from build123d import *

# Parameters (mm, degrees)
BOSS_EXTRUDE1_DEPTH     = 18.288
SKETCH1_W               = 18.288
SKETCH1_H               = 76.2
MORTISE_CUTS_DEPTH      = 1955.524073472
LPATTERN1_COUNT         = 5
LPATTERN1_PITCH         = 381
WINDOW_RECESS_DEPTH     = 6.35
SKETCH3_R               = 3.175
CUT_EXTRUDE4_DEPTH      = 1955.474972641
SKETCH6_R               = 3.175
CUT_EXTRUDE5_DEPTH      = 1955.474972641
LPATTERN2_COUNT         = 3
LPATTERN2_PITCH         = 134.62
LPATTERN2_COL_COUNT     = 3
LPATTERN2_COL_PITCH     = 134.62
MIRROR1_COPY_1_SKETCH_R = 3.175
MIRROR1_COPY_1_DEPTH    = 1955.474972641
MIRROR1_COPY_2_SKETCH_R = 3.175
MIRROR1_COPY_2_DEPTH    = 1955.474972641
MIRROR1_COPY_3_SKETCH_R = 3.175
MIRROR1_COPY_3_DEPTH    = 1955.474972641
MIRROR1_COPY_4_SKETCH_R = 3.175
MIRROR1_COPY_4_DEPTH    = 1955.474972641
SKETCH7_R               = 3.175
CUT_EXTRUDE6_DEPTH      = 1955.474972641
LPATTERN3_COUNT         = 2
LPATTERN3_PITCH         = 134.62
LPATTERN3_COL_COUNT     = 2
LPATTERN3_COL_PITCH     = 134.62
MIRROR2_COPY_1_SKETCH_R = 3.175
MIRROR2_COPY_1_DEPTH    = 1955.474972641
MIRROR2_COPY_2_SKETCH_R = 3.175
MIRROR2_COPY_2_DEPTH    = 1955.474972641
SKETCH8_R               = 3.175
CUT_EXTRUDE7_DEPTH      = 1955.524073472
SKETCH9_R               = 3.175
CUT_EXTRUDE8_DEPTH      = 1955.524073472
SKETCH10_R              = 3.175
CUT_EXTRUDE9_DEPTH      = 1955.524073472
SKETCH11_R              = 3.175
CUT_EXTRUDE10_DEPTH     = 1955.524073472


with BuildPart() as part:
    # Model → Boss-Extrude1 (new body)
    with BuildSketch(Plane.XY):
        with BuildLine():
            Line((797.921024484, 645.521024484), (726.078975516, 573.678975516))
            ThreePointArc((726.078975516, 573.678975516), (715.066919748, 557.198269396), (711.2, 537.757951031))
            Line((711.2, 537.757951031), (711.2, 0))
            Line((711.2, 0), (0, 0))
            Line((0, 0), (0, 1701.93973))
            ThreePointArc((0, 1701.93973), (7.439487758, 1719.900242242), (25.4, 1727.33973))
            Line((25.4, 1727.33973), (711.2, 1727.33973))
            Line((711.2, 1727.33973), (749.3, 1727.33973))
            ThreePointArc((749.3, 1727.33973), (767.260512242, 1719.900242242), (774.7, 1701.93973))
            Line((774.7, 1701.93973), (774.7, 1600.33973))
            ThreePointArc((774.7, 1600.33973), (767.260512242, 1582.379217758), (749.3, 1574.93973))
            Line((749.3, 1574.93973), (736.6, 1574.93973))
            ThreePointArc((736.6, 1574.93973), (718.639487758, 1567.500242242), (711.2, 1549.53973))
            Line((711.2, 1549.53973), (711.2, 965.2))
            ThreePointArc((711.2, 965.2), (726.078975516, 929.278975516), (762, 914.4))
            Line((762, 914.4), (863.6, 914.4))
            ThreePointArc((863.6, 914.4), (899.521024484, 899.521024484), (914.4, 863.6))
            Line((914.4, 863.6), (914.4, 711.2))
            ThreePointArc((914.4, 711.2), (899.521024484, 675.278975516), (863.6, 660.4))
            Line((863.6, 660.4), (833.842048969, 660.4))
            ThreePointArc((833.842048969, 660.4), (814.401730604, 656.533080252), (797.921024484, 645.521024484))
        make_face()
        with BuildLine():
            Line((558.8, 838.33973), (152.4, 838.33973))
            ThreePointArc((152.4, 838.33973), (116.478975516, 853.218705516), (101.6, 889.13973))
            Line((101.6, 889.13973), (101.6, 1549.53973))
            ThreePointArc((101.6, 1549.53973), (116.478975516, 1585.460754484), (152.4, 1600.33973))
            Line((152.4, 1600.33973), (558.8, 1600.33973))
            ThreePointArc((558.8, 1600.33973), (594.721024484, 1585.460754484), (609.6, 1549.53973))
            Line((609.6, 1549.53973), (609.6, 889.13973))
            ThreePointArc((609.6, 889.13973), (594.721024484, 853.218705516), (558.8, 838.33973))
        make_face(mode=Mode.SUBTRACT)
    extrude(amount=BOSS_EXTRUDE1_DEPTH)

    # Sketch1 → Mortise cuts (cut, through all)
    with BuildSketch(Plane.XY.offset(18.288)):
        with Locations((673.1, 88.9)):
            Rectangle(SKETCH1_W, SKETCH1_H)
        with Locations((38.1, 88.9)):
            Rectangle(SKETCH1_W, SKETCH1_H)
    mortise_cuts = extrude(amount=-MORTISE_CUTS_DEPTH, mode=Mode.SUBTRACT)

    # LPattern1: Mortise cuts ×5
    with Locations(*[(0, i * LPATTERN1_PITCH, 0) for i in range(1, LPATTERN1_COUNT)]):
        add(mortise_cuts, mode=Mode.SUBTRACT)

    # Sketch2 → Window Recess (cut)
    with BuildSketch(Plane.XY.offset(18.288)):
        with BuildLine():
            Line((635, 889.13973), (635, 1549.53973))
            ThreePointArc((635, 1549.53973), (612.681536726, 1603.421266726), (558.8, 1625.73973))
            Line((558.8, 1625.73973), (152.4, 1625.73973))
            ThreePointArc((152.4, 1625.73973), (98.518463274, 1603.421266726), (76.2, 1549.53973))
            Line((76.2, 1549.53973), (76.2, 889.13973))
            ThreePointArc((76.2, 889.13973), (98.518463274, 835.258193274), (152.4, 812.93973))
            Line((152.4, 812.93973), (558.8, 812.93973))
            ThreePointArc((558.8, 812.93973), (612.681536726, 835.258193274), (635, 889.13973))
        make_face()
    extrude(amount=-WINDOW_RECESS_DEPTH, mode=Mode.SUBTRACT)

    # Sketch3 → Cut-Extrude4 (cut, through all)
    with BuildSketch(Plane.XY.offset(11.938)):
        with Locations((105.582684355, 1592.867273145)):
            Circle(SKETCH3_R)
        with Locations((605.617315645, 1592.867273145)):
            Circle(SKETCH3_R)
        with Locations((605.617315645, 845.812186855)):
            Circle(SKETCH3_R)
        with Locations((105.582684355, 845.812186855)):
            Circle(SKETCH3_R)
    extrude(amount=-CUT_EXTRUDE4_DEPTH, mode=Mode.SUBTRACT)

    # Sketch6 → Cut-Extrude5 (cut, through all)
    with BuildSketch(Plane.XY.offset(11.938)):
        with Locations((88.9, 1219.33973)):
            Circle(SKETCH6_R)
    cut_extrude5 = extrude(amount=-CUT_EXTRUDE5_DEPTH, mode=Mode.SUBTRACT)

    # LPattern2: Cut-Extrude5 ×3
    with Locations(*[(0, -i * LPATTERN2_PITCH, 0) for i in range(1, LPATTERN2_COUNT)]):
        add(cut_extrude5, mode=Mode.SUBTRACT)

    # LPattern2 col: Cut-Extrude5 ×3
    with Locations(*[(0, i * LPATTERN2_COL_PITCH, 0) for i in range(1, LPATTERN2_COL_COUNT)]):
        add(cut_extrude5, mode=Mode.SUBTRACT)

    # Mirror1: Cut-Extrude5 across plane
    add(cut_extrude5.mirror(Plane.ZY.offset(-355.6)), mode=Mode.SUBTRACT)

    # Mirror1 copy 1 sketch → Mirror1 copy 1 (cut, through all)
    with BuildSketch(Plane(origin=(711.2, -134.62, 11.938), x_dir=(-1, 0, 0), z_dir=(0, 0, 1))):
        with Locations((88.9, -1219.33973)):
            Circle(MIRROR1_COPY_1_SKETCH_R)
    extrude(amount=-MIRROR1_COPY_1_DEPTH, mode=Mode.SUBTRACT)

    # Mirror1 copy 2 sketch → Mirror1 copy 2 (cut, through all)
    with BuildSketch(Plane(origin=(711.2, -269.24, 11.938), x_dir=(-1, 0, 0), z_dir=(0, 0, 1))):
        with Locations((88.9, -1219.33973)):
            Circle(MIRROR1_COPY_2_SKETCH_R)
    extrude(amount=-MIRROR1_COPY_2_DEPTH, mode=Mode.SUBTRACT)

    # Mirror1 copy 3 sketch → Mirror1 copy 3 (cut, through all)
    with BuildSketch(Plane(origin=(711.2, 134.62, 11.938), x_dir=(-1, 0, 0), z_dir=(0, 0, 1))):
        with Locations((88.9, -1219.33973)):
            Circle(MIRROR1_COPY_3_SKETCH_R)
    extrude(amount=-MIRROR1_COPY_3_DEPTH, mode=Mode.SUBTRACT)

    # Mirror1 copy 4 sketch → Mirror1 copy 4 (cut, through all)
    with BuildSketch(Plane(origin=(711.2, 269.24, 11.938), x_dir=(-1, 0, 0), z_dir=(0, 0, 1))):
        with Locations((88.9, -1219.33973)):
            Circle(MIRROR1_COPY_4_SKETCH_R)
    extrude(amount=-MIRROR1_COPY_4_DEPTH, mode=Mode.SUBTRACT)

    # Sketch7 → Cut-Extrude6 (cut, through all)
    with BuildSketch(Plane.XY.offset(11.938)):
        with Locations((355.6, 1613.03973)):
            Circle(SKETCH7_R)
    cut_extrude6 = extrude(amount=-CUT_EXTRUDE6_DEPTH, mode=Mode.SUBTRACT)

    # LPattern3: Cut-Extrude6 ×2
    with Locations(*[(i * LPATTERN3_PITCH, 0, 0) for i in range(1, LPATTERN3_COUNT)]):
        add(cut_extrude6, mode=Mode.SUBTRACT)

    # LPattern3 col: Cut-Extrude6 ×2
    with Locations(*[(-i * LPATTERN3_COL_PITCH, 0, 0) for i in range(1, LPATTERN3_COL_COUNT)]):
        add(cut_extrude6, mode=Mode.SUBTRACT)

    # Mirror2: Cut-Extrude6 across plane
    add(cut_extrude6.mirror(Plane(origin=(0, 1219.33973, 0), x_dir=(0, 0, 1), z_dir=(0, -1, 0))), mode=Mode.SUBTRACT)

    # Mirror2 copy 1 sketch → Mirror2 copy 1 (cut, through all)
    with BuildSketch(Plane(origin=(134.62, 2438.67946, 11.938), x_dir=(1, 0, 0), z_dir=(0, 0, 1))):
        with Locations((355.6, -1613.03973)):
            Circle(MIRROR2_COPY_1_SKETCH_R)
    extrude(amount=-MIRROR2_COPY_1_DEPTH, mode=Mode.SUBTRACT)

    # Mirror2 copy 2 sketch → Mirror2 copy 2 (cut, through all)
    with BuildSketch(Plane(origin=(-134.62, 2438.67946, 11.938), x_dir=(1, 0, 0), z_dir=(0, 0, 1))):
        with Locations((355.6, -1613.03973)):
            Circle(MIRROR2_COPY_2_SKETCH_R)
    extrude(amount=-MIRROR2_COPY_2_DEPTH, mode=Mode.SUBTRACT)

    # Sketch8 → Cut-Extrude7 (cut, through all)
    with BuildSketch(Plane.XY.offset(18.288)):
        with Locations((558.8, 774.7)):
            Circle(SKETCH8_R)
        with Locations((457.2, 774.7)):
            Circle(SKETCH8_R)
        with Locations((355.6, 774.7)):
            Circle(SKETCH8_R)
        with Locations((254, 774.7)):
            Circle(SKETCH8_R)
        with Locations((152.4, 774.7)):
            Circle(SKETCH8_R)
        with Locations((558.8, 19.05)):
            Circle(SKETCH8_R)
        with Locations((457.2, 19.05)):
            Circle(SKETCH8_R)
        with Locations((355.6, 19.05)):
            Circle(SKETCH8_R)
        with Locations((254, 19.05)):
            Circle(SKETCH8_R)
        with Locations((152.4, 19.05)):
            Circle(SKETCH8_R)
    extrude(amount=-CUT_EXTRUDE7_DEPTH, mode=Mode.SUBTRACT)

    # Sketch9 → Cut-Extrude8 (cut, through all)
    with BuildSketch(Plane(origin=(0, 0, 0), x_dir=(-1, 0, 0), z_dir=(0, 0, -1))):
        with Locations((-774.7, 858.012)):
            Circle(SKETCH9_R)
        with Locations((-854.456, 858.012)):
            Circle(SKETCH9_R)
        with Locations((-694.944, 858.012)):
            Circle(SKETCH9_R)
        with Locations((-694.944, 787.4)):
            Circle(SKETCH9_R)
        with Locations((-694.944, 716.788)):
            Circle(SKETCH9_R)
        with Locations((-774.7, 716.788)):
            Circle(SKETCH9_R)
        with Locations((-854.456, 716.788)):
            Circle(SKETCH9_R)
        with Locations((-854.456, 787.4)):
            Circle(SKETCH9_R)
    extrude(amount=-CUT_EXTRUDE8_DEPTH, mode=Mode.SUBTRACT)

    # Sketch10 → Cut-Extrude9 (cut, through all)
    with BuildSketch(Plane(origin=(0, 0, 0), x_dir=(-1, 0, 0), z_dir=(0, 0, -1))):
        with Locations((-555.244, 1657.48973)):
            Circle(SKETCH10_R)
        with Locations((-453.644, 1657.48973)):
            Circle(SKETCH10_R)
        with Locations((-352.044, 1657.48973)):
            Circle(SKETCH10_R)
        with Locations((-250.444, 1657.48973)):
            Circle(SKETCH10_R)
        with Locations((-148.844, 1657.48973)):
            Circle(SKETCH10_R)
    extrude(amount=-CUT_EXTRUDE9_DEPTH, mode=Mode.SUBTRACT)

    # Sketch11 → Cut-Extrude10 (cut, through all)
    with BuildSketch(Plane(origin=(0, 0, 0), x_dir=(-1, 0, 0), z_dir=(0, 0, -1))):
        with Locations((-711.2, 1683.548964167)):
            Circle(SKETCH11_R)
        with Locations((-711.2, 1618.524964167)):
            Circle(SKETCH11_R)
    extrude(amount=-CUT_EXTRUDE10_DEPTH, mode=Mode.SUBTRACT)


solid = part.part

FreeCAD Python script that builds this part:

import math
import FreeCAD as App
import Part
import Sketcher
from FreeCAD import Vector
Q = App.Units.Quantity


def add_polygon(sketch, points):
    """Adds a closed chain of lines whose ends are joined by coincident constraints."""
    first, n = sketch.GeometryCount, len(points)
    for a, b in zip(points, points[1:] + points[:1]):
        sketch.addGeometry(Part.LineSegment(App.Vector(*a, 0), App.Vector(*b, 0)), False)
    for i in range(n):
        sketch.addConstraint(Sketcher.Constraint("Coincident", first + i, 2, first + (i + 1) % n, 1))

doc = App.newDocument("Part")
body = doc.addObject("PartDesign::Body", "Body")

sketch1 = doc.addObject("Sketcher::SketchObject", "Sketch")
body.addObject(sketch1)
sketch1.AttachmentSupport = (doc.XY_Plane, [""])
sketch1.MapMode = "FlatFace"
sketch1.addGeometry([
    Part.LineSegment(Vector(726, 574, 0), Vector(798, 646, 0)),
    Part.ArcOfCircle(Part.Circle(Vector(834, 610, 0), Vector(0, 0, 1), 51), math.radians(90), math.radians(135)),
    Part.LineSegment(Vector(834, 660, 0), Vector(864, 660, 0)),
    Part.ArcOfCircle(Part.Circle(Vector(864, 711, 0), Vector(0, 0, 1), 51), math.radians(-90), math.radians(0)),
    Part.LineSegment(Vector(914, 711, 0), Vector(914, 864, 0)),
    Part.ArcOfCircle(Part.Circle(Vector(864, 864, 0), Vector(0, 0, 1), 51), math.radians(0), math.radians(90)),
    Part.LineSegment(Vector(864, 914, 0), Vector(762, 914, 0)),
    Part.ArcOfCircle(Part.Circle(Vector(762, 965, 0), Vector(0, 0, 1), 51), math.radians(-180), math.radians(-90)),
    Part.LineSegment(Vector(711, 965, 0), Vector(711, 1550, 0)),
    Part.ArcOfCircle(Part.Circle(Vector(737, 1550, 0), Vector(0, 0, 1), 25), math.radians(90), math.radians(180)),
    Part.LineSegment(Vector(737, 1575, 0), Vector(749, 1575, 0)),
    Part.ArcOfCircle(Part.Circle(Vector(749, 1600, 0), Vector(0, 0, 1), 25), math.radians(-90), math.radians(0)),
    Part.LineSegment(Vector(775, 1600, 0), Vector(775, 1702, 0)),
    Part.ArcOfCircle(Part.Circle(Vector(749, 1702, 0), Vector(0, 0, 1), 25), math.radians(0), math.radians(90)),
    Part.LineSegment(Vector(749, 1727, 0), Vector(25, 1727, 0)),
    Part.ArcOfCircle(Part.Circle(Vector(25, 1702, 0), Vector(0, 0, 1), 25), math.radians(90), math.radians(180)),
    Part.LineSegment(Vector(0, 1702, 0), Vector(0, 0, 0)),
    Part.LineSegment(Vector(0, 0, 0), Vector(711, 0, 0)),
    Part.LineSegment(Vector(711, 0, 0), Vector(711, 538, 0)),
    Part.ArcOfCircle(Part.Circle(Vector(762, 538, 0), Vector(0, 0, 1), 51), math.radians(135), math.radians(180)),
    Part.LineSegment(Vector(559, 838, 0), Vector(152, 838, 0)),
    Part.ArcOfCircle(Part.Circle(Vector(152, 889, 0), Vector(0, 0, 1), 51), math.radians(-180), math.radians(-90)),
    Part.LineSegment(Vector(102, 889, 0), Vector(102, 1550, 0)),
    Part.ArcOfCircle(Part.Circle(Vector(152, 1550, 0), Vector(0, 0, 1), 51), math.radians(90), math.radians(180)),
    Part.LineSegment(Vector(152, 1600, 0), Vector(559, 1600, 0)),
    Part.ArcOfCircle(Part.Circle(Vector(559, 1550, 0), Vector(0, 0, 1), 51), math.radians(0), math.radians(90)),
    Part.LineSegment(Vector(610, 1550, 0), Vector(610, 889, 0)),
    Part.ArcOfCircle(Part.Circle(Vector(559, 889, 0), Vector(0, 0, 1), 51), math.radians(-90), math.radians(0)),
], False)
sketch1.addConstraint([
    Sketcher.Constraint("Tangent", 0, 2, 1, 2),
    Sketcher.Constraint("Tangent", 1, 1, 2, 1),
    Sketcher.Constraint("Tangent", 2, 2, 3, 1),
    Sketcher.Constraint("Tangent", 3, 2, 4, 1),
    Sketcher.Constraint("Tangent", 4, 2, 5, 1),
    Sketcher.Constraint("Tangent", 5, 2, 6, 1),
    Sketcher.Constraint("Tangent", 6, 2, 7, 2),
    Sketcher.Constraint("Tangent", 7, 1, 8, 1),
    Sketcher.Constraint("Tangent", 8, 2, 9, 2),
    Sketcher.Constraint("Tangent", 9, 1, 10, 1),
    Sketcher.Constraint("Tangent", 10, 2, 11, 1),
    Sketcher.Constraint("Tangent", 11, 2, 12, 1),
    Sketcher.Constraint("Tangent", 12, 2, 13, 1),
    Sketcher.Constraint("Tangent", 13, 2, 14, 1),
    Sketcher.Constraint("Tangent", 14, 2, 15, 1),
    Sketcher.Constraint("Tangent", 15, 2, 16, 1),
    Sketcher.Constraint("Coincident", 16, 2, 17, 1),
    Sketcher.Constraint("Coincident", 17, 2, 18, 1),
    Sketcher.Constraint("Tangent", 18, 2, 19, 2),
    Sketcher.Constraint("Tangent", 19, 1, 0, 1),
    Sketcher.Constraint("Tangent", 20, 2, 21, 2),
    Sketcher.Constraint("Tangent", 21, 1, 22, 1),
    Sketcher.Constraint("Tangent", 22, 2, 23, 2),
    Sketcher.Constraint("Tangent", 23, 1, 24, 1),
    Sketcher.Constraint("Tangent", 24, 2, 25, 2),
    Sketcher.Constraint("Tangent", 25, 1, 26, 1),
    Sketcher.Constraint("Tangent", 26, 2, 27, 2),
    Sketcher.Constraint("Tangent", 27, 1, 20, 1),
    Sketcher.Constraint("Horizontal", 2),
    Sketcher.Constraint("Vertical", 4),
    Sketcher.Constraint("Horizontal", 6),
    Sketcher.Constraint("Vertical", 8),
    Sketcher.Constraint("Horizontal", 10),
    Sketcher.Constraint("Vertical", 12),
    Sketcher.Constraint("Horizontal", 14),
    Sketcher.Constraint("Vertical", 16),
    Sketcher.Constraint("Horizontal", 17),
    Sketcher.Constraint("Vertical", 18),
    Sketcher.Constraint("Horizontal", 20),
    Sketcher.Constraint("Vertical", 22),
    Sketcher.Constraint("Horizontal", 24),
    Sketcher.Constraint("Vertical", 26),
    Sketcher.Constraint("Coincident", 16, 2, -1, 1),
    Sketcher.Constraint("Equal", 1, 3),
    Sketcher.Constraint("Equal", 3, 5),
    Sketcher.Constraint("Equal", 5, 7),
    Sketcher.Constraint("Equal", 9, 11),
    Sketcher.Constraint("Equal", 11, 13),
    Sketcher.Constraint("Equal", 13, 15),
    Sketcher.Constraint("Equal", 7, 19),
    Sketcher.Constraint("Equal", 19, 21),
    Sketcher.Constraint("Equal", 21, 23),
    Sketcher.Constraint("Equal", 23, 25),
    Sketcher.Constraint("Equal", 25, 27),
    Sketcher.Constraint("Horizontal", 9, 3, 23, 3),
    Sketcher.Constraint("Horizontal", 11, 2, 23, 1),
    Sketcher.Constraint("Vertical", 7, 3, 19, 3),
    Sketcher.Constraint("Equal", 6, 12),
    Sketcher.Constraint("Radius", 1, Q("2 in")),
    Sketcher.Constraint("DistanceX", 6, 2, 6, 1, Q("4 in")),
    Sketcher.Constraint("DistanceX", 17, 1, 17, 2, Q("28 in")),
    Sketcher.Constraint("DistanceX", 20, 2, 20, 1, Q("16 in")),
    Sketcher.Constraint("DistanceY", 4, 1, 4, 2, Q("6 in")),
    Sketcher.Constraint("DistanceY", 22, 1, 22, 2, Q("26 in")),
    Sketcher.Constraint("Distance", 0, Q("4 in")),
    Sketcher.Constraint("DistanceX", 10, 1, 10, 2, Q("0.5 in")),
    Sketcher.Constraint("DistanceY", -1, 1, 1, 3, Q("24 in")),
    Sketcher.Constraint("DistanceX", -1, 1, 21, 3, Q("6 in")),
    Sketcher.Constraint("Angle", 0, Q("45 deg")),
    Sketcher.Constraint("DistanceY", 8, 1, 8, 2, Q("584.33973 mm")),
])
pad1 = doc.addObject("PartDesign::Pad", "Pad")
body.addObject(pad1)
pad1.Profile = sketch1
pad1.Length = Q("0.72 in")

sketch2 = doc.addObject("Sketcher::SketchObject", "Sketch001")
body.addObject(sketch2)
sketch2.AttachmentSupport = (doc.XY_Plane, [""])
sketch2.MapMode = "FlatFace"
sketch2.AttachmentOffset = App.Placement(Vector(0, 0, 0.72 * 25.4), App.Rotation())
add_polygon(sketch2, [(664, 127), (664, 51), (682, 51), (682, 127)])
add_polygon(sketch2, [(29, 127), (29, 51), (47, 51), (47, 127)])
sketch2.addConstraint([
    Sketcher.Constraint("Vertical", 0),
    Sketcher.Constraint("Horizontal", 1),
    Sketcher.Constraint("Vertical", 2),
    Sketcher.Constraint("Horizontal", 3),
    Sketcher.Constraint("Vertical", 4),
    Sketcher.Constraint("Horizontal", 5),
    Sketcher.Constraint("Vertical", 6),
    Sketcher.Constraint("Horizontal", 7),
    Sketcher.Constraint("Horizontal", 1, 2, 4, 2),
    Sketcher.Constraint("Horizontal", 3, 2, 6, 2),
    Sketcher.Constraint("Equal", 3, 5),
    Sketcher.Constraint("DistanceY", 0, 2, 0, 1, Q("3 in")),
    Sketcher.Constraint("DistanceY", -1, 1, 0, 2, Q("2 in")),
    Sketcher.Constraint("DistanceX", 4, 2, 0, 2, Q("25 in")),
    Sketcher.Constraint("DistanceX", 1, 1, 1, 2, Q("0.72 in")),
    Sketcher.Constraint("DistanceX", -1, 1, 0, 2, Q("26.14 in")),
])
pocket1 = doc.addObject("PartDesign::Pocket", "Pocket")
body.addObject(pocket1)
pocket1.Profile = sketch2
pocket1.Type = "ThroughAll"
doc.recompute()

linearpattern = doc.addObject("PartDesign::LinearPattern", "LinearPattern")
body.addObject(linearpattern)
linearpattern.Originals = [pocket1]
linearpattern.Direction = (doc.Y_Axis, [""])
linearpattern.Mode = "offset"
linearpattern.Offset = Q("15 in")
linearpattern.Occurrences = 5
body.Tip = linearpattern

sketch3 = doc.addObject("Sketcher::SketchObject", "Sketch002")
body.addObject(sketch3)
sketch3.AttachmentSupport = (doc.XY_Plane, [""])
sketch3.MapMode = "FlatFace"
sketch3.AttachmentOffset = App.Placement(Vector(0, 0, 0.72 * 25.4), App.Rotation())
sketch3.addGeometry([
    Part.LineSegment(Vector(635, 889, 0), Vector(635, 1550, 0)),
    Part.ArcOfCircle(Part.Circle(Vector(559, 1550, 0), Vector(0, 0, 1), 76), math.radians(0), math.radians(90)),
    Part.LineSegment(Vector(559, 1626, 0), Vector(152, 1626, 0)),
    Part.ArcOfCircle(Part.Circle(Vector(152, 1550, 0), Vector(0, 0, 1), 76), math.radians(90), math.radians(180)),
    Part.LineSegment(Vector(76, 1550, 0), Vector(76, 889, 0)),
    Part.ArcOfCircle(Part.Circle(Vector(152, 889, 0), Vector(0, 0, 1), 76), math.radians(-180), math.radians(-90)),
    Part.LineSegment(Vector(152, 813, 0), Vector(559, 813, 0)),
    Part.ArcOfCircle(Part.Circle(Vector(559, 889, 0), Vector(0, 0, 1), 76), math.radians(-90), math.radians(0)),
], False)
sketch3.addConstraint([
    Sketcher.Constraint("Tangent", 0, 2, 1, 1),
    Sketcher.Constraint("Tangent", 1, 2, 2, 1),
    Sketcher.Constraint("Tangent", 2, 2, 3, 1),
    Sketcher.Constraint("Tangent", 3, 2, 4, 1),
    Sketcher.Constraint("Tangent", 4, 2, 5, 1),
    Sketcher.Constraint("Tangent", 5, 2, 6, 1),
    Sketcher.Constraint("Tangent", 6, 2, 7, 1),
    Sketcher.Constraint("Tangent", 7, 2, 0, 1),
    Sketcher.Constraint("Vertical", 0),
    Sketcher.Constraint("Horizontal", 2),
    Sketcher.Constraint("Vertical", 4),
    Sketcher.Constraint("Horizontal", 6),
    Sketcher.Constraint("Equal", 1, 3),
    Sketcher.Constraint("Equal", 3, 5),
    Sketcher.Constraint("Equal", 5, 7),
    Sketcher.Constraint("Radius", 1, Q("3 in")),
    Sketcher.Constraint("DistanceX", 2, 2, 2, 1, Q("16 in")),
    Sketcher.Constraint("DistanceY", 0, 1, 0, 2, Q("26 in")),
    Sketcher.Constraint("DistanceX", -1, 1, 1, 3, Q("22 in")),
    Sketcher.Constraint("DistanceY", -1, 1, 1, 3, Q("1549.53973 mm")),
])
pocket2 = doc.addObject("PartDesign::Pocket", "Pocket001")
body.addObject(pocket2)
pocket2.Profile = sketch3
pocket2.Length = Q("0.25 in")

sketch4 = doc.addObject("Sketcher::SketchObject", "Sketch003")
body.addObject(sketch4)
sketch4.AttachmentSupport = (doc.XY_Plane, [""])
sketch4.MapMode = "FlatFace"
sketch4.AttachmentOffset = App.Placement(Vector(0, 0, 0.47 * 25.4), App.Rotation())
sketch4.addGeometry([
    Part.Circle(Vector(105.6, 1592.9, 0), Vector(0, 0, 1), 3.2),
    Part.Circle(Vector(605.6, 1592.9, 0), Vector(0, 0, 1), 3.2),
    Part.Circle(Vector(605.6, 845.8, 0), Vector(0, 0, 1), 3.2),
    Part.Circle(Vector(105.6, 845.8, 0), Vector(0, 0, 1), 3.2),
], False)
sketch4.addConstraint([
    Sketcher.Constraint("Equal", 0, 1),
    Sketcher.Constraint("Equal", 1, 2),
    Sketcher.Constraint("Equal", 2, 3),
    Sketcher.Constraint("Horizontal", 0, 3, 1, 3),
    Sketcher.Constraint("Horizontal", 2, 3, 3, 3),
    Sketcher.Constraint("Vertical", 1, 3, 2, 3),
    Sketcher.Constraint("Vertical", 0, 3, 3, 3),
    Sketcher.Constraint("Diameter", 0, Q("0.25 in")),
    Sketcher.Constraint("DistanceX", 0, 3, 1, 3, Q("500.034631 mm")),
    Sketcher.Constraint("DistanceX", -1, 1, 0, 3, Q("105.582684 mm")),
    Sketcher.Constraint("DistanceY", -1, 1, 0, 3, Q("1592.867273 mm")),
    Sketcher.Constraint("DistanceY", -1, 1, 2, 3, Q("845.812187 mm")),
])
pocket3 = doc.addObject("PartDesign::Pocket", "Pocket002")
body.addObject(pocket3)
pocket3.Profile = sketch4
pocket3.Type = "ThroughAll"

sketch5 = doc.addObject("Sketcher::SketchObject", "Sketch004")
body.addObject(sketch5)
sketch5.AttachmentSupport = (doc.XY_Plane, [""])
sketch5.MapMode = "FlatFace"
sketch5.AttachmentOffset = App.Placement(Vector(0, 0, 0.47 * 25.4), App.Rotation())
sketch5.addGeometry(Part.Circle(Vector(88.9, 1219.3, 0), Vector(0, 0, 1), 3.2), False)
sketch5.addConstraint([
    Sketcher.Constraint("Diameter", 0, Q("0.25 in")),
    Sketcher.Constraint("DistanceX", -1, 1, 0, 3, Q("3.5 in")),
    Sketcher.Constraint("DistanceY", -1, 1, 0, 3, Q("1219.33973 mm")),
])
pocket4 = doc.addObject("PartDesign::Pocket", "Pocket003")
body.addObject(pocket4)
pocket4.Profile = sketch5
pocket4.Type = "ThroughAll"
doc.recompute()

linearpattern2 = doc.addObject("PartDesign::LinearPattern", "LinearPattern001")
body.addObject(linearpattern2)
linearpattern2.Originals = [pocket4]
linearpattern2.Direction = (doc.Y_Axis, [""])
linearpattern2.Mode = "offset"
linearpattern2.Offset = Q("5.3 in")
linearpattern2.Occurrences = 3
linearpattern2.Reversed = True
body.Tip = linearpattern2
doc.recompute()

linearpattern3 = doc.addObject("PartDesign::LinearPattern", "LinearPattern002")
body.addObject(linearpattern3)
linearpattern3.Originals = [pocket4]
linearpattern3.Direction = (doc.Y_Axis, [""])
linearpattern3.Mode = "offset"
linearpattern3.Offset = Q("5.3 in")
linearpattern3.Occurrences = 3
body.Tip = linearpattern3
doc.recompute()

datumplane = doc.addObject("PartDesign::Plane", "DatumPlane")
body.addObject(datumplane)
datumplane.AttachmentSupport = (doc.YZ_Plane, [""])
datumplane.MapMode = "FlatFace"
datumplane.AttachmentOffset = App.Placement(Vector(0, 0, 14 * 25.4), App.Rotation())
mirrored = doc.addObject("PartDesign::Mirrored", "Mirrored")
body.addObject(mirrored)
mirrored.Originals = [pocket4]
mirrored.MirrorPlane = (datumplane, [""])
body.Tip = mirrored

sketch6 = doc.addObject("Sketcher::SketchObject", "Sketch005")
body.addObject(sketch6)
sketch6.AttachmentSupport = (doc.XY_Plane, [""])
sketch6.MapMode = "FlatFace"
sketch6.AttachmentOffset = App.Placement(Vector(0, 0, 0.47 * 25.4), App.Rotation())
sketch6.addGeometry(Part.Circle(Vector(622.3, 1084.7, 0), Vector(0, 0, 1), 3.2), False)
sketch6.addConstraint([
    Sketcher.Constraint("Diameter", 0, Q("0.25 in")),
    Sketcher.Constraint("DistanceX", -1, 1, 0, 3, Q("24.5 in")),
    Sketcher.Constraint("DistanceY", -1, 1, 0, 3, Q("1084.71973 mm")),
])
pocket5 = doc.addObject("PartDesign::Pocket", "Pocket004")
body.addObject(pocket5)
pocket5.Profile = sketch6
pocket5.Type = "ThroughAll"

sketch7 = doc.addObject("Sketcher::SketchObject", "Sketch006")
body.addObject(sketch7)
sketch7.AttachmentSupport = (doc.XY_Plane, [""])
sketch7.MapMode = "FlatFace"
sketch7.AttachmentOffset = App.Placement(Vector(0, 0, 0.47 * 25.4), App.Rotation())
sketch7.addGeometry(Part.Circle(Vector(622.3, 950.1, 0), Vector(0, 0, 1), 3.2), False)
sketch7.addConstraint([
    Sketcher.Constraint("Diameter", 0, Q("0.25 in")),
    Sketcher.Constraint("DistanceX", -1, 1, 0, 3, Q("24.5 in")),
    Sketcher.Constraint("DistanceY", -1, 1, 0, 3, Q("950.09973 mm")),
])
pocket6 = doc.addObject("PartDesign::Pocket", "Pocket005")
body.addObject(pocket6)
pocket6.Profile = sketch7
pocket6.Type = "ThroughAll"

sketch8 = doc.addObject("Sketcher::SketchObject", "Sketch007")
body.addObject(sketch8)
sketch8.AttachmentSupport = (doc.XY_Plane, [""])
sketch8.MapMode = "FlatFace"
sketch8.AttachmentOffset = App.Placement(Vector(0, 0, 0.47 * 25.4), App.Rotation())
sketch8.addGeometry(Part.Circle(Vector(622.3, 1354, 0), Vector(0, 0, 1), 3.2), False)
sketch8.addConstraint([
    Sketcher.Constraint("Diameter", 0, Q("0.25 in")),
    Sketcher.Constraint("DistanceX", -1, 1, 0, 3, Q("24.5 in")),
    Sketcher.Constraint("DistanceY", -1, 1, 0, 3, Q("1353.95973 mm")),
])
pocket7 = doc.addObject("PartDesign::Pocket", "Pocket006")
body.addObject(pocket7)
pocket7.Profile = sketch8
pocket7.Type = "ThroughAll"

sketch9 = doc.addObject("Sketcher::SketchObject", "Sketch008")
body.addObject(sketch9)
sketch9.AttachmentSupport = (doc.XY_Plane, [""])
sketch9.MapMode = "FlatFace"
sketch9.AttachmentOffset = App.Placement(Vector(0, 0, 0.47 * 25.4), App.Rotation())
sketch9.addGeometry(Part.Circle(Vector(622.3, 1488.6, 0), Vector(0, 0, 1), 3.2), False)
sketch9.addConstraint([
    Sketcher.Constraint("Diameter", 0, Q("0.25 in")),
    Sketcher.Constraint("DistanceX", -1, 1, 0, 3, Q("24.5 in")),
    Sketcher.Constraint("DistanceY", -1, 1, 0, 3, Q("1488.57973 mm")),
])
pocket8 = doc.addObject("PartDesign::Pocket", "Pocket007")
body.addObject(pocket8)
pocket8.Profile = sketch9
pocket8.Type = "ThroughAll"

sketch10 = doc.addObject("Sketcher::SketchObject", "Sketch009")
body.addObject(sketch10)
sketch10.AttachmentSupport = (doc.XY_Plane, [""])
sketch10.MapMode = "FlatFace"
sketch10.AttachmentOffset = App.Placement(Vector(0, 0, 0.47 * 25.4), App.Rotation())
sketch10.addGeometry(Part.Circle(Vector(355.6, 1613, 0), Vector(0, 0, 1), 3.2), False)
sketch10.addConstraint([
    Sketcher.Constraint("Diameter", 0, Q("0.25 in")),
    Sketcher.Constraint("DistanceX", -1, 1, 0, 3, Q("14 in")),
    Sketcher.Constraint("DistanceY", -1, 1, 0, 3, Q("1613.03973 mm")),
])
pocket9 = doc.addObject("PartDesign::Pocket", "Pocket008")
body.addObject(pocket9)
pocket9.Profile = sketch10
pocket9.Type = "ThroughAll"
doc.recompute()

linearpattern4 = doc.addObject("PartDesign::LinearPattern", "LinearPattern003")
body.addObject(linearpattern4)
linearpattern4.Originals = [pocket9]
linearpattern4.Direction = (doc.X_Axis, [""])
linearpattern4.Mode = "offset"
linearpattern4.Offset = Q("5.3 in")
linearpattern4.Occurrences = 2
body.Tip = linearpattern4
doc.recompute()

linearpattern5 = doc.addObject("PartDesign::LinearPattern", "LinearPattern004")
body.addObject(linearpattern5)
linearpattern5.Originals = [pocket9]
linearpattern5.Direction = (doc.X_Axis, [""])
linearpattern5.Mode = "offset"
linearpattern5.Offset = Q("5.3 in")
linearpattern5.Occurrences = 2
linearpattern5.Reversed = True
body.Tip = linearpattern5
doc.recompute()

datumplane2 = doc.addObject("PartDesign::Plane", "DatumPlane001")
body.addObject(datumplane2)
datumplane2.AttachmentSupport = (doc.XZ_Plane, [""])
datumplane2.MapMode = "FlatFace"
datumplane2.AttachmentOffset = App.Placement(Vector(0, 0, -1219.33973), App.Rotation())
mirrored2 = doc.addObject("PartDesign::Mirrored", "Mirrored001")
body.addObject(mirrored2)
mirrored2.Originals = [pocket9]
mirrored2.MirrorPlane = (datumplane2, [""])
body.Tip = mirrored2

sketch11 = doc.addObject("Sketcher::SketchObject", "Sketch010")
body.addObject(sketch11)
sketch11.AttachmentSupport = (doc.XY_Plane, [""])
sketch11.MapMode = "FlatFace"
sketch11.AttachmentOffset = App.Placement(Vector(0, 0, 0.47 * 25.4), App.Rotation())
sketch11.addGeometry(Part.Circle(Vector(490.2, 825.6, 0), Vector(0, 0, 1), 3.2), False)
sketch11.addConstraint([
    Sketcher.Constraint("Diameter", 0, Q("0.25 in")),
    Sketcher.Constraint("DistanceX", -1, 1, 0, 3, Q("19.3 in")),
    Sketcher.Constraint("DistanceY", -1, 1, 0, 3, Q("825.63973 mm")),
])
pocket10 = doc.addObject("PartDesign::Pocket", "Pocket009")
body.addObject(pocket10)
pocket10.Profile = sketch11
pocket10.Type = "ThroughAll"

sketch12 = doc.addObject("Sketcher::SketchObject", "Sketch011")
body.addObject(sketch12)
sketch12.AttachmentSupport = (doc.XY_Plane, [""])
sketch12.MapMode = "FlatFace"
sketch12.AttachmentOffset = App.Placement(Vector(0, 0, 0.47 * 25.4), App.Rotation())
sketch12.addGeometry(Part.Circle(Vector(221, 825.6, 0), Vector(0, 0, 1), 3.2), False)
sketch12.addConstraint([
    Sketcher.Constraint("Diameter", 0, Q("0.25 in")),
    Sketcher.Constraint("DistanceX", -1, 1, 0, 3, Q("8.7 in")),
    Sketcher.Constraint("DistanceY", -1, 1, 0, 3, Q("825.63973 mm")),
])
pocket11 = doc.addObject("PartDesign::Pocket", "Pocket010")
body.addObject(pocket11)
pocket11.Profile = sketch12
pocket11.Type = "ThroughAll"

sketch13 = doc.addObject("Sketcher::SketchObject", "Sketch012")
body.addObject(sketch13)
sketch13.AttachmentSupport = (doc.XY_Plane, [""])
sketch13.MapMode = "FlatFace"
sketch13.AttachmentOffset = App.Placement(Vector(0, 0, 0.72 * 25.4), App.Rotation())
sketch13.addGeometry([
    Part.Circle(Vector(558.8, 774.7, 0), Vector(0, 0, 1), 3.2),
    Part.Circle(Vector(457.2, 774.7, 0), Vector(0, 0, 1), 3.2),
    Part.Circle(Vector(355.6, 774.7, 0), Vector(0, 0, 1), 3.2),
    Part.Circle(Vector(254, 774.7, 0), Vector(0, 0, 1), 3.2),
    Part.Circle(Vector(152.4, 774.7, 0), Vector(0, 0, 1), 3.2),
    Part.Circle(Vector(558.8, 19.1, 0), Vector(0, 0, 1), 3.2),
    Part.Circle(Vector(457.2, 19.1, 0), Vector(0, 0, 1), 3.2),
    Part.Circle(Vector(355.6, 19.1, 0), Vector(0, 0, 1), 3.2),
    Part.Circle(Vector(254, 19.1, 0), Vector(0, 0, 1), 3.2),
    Part.Circle(Vector(152.4, 19.1, 0), Vector(0, 0, 1), 3.2),
], False)
sketch13.addConstraint([
    Sketcher.Constraint("Equal", 0, 1),
    Sketcher.Constraint("Equal", 1, 2),
    Sketcher.Constraint("Equal", 2, 3),
    Sketcher.Constraint("Equal", 3, 4),
    Sketcher.Constraint("Equal", 4, 5),
    Sketcher.Constraint("Equal", 5, 6),
    Sketcher.Constraint("Equal", 6, 7),
    Sketcher.Constraint("Equal", 7, 8),
    Sketcher.Constraint("Equal", 8, 9),
    Sketcher.Constraint("Horizontal", 0, 3, 1, 3),
    Sketcher.Constraint("Horizontal", 1, 3, 2, 3),
    Sketcher.Constraint("Horizontal", 2, 3, 3, 3),
    Sketcher.Constraint("Horizontal", 3, 3, 4, 3),
    Sketcher.Constraint("Horizontal", 5, 3, 6, 3),
    Sketcher.Constraint("Horizontal", 6, 3, 7, 3),
    Sketcher.Constraint("Horizontal", 7, 3, 8, 3),
    Sketcher.Constraint("Horizontal", 8, 3, 9, 3),
    Sketcher.Constraint("Vertical", 0, 3, 5, 3),
    Sketcher.Constraint("Vertical", 1, 3, 6, 3),
    Sketcher.Constraint("Vertical", 2, 3, 7, 3),
    Sketcher.Constraint("Vertical", 3, 3, 8, 3),
    Sketcher.Constraint("Vertical", 4, 3, 9, 3),
    Sketcher.Constraint("Diameter", 0, Q("0.25 in")),
    Sketcher.Constraint("DistanceX", -1, 1, 0, 3, Q("22 in")),
    Sketcher.Constraint("DistanceX", -1, 1, 1, 3, Q("18 in")),
    Sketcher.Constraint("DistanceX", -1, 1, 2, 3, Q("14 in")),
    Sketcher.Constraint("DistanceX", -1, 1, 3, 3, Q("10 in")),
    Sketcher.Constraint("DistanceX", -1, 1, 4, 3, Q("6 in")),
    Sketcher.Constraint("DistanceY", -1, 1, 0, 3, Q("30.5 in")),
    Sketcher.Constraint("DistanceY", -1, 1, 5, 3, Q("0.75 in")),
])
pocket12 = doc.addObject("PartDesign::Pocket", "Pocket011")
body.addObject(pocket12)
pocket12.Profile = sketch13
pocket12.Type = "ThroughAll"

sketch14 = doc.addObject("Sketcher::SketchObject", "Sketch013")
body.addObject(sketch14)
sketch14.AttachmentSupport = (doc.XY_Plane, [""])
sketch14.MapMode = "FlatFace"
sketch14.addGeometry([
    Part.Circle(Vector(774.7, 858, 0), Vector(0, 0, 1), 3.2),
    Part.Circle(Vector(854.5, 858, 0), Vector(0, 0, 1), 3.2),
    Part.Circle(Vector(694.9, 858, 0), Vector(0, 0, 1), 3.2),
    Part.Circle(Vector(694.9, 787.4, 0), Vector(0, 0, 1), 3.2),
    Part.Circle(Vector(694.9, 716.8, 0), Vector(0, 0, 1), 3.2),
    Part.Circle(Vector(774.7, 716.8, 0), Vector(0, 0, 1), 3.2),
    Part.Circle(Vector(854.5, 716.8, 0), Vector(0, 0, 1), 3.2),
    Part.Circle(Vector(854.5, 787.4, 0), Vector(0, 0, 1), 3.2),
], False)
sketch14.addConstraint([
    Sketcher.Constraint("Equal", 0, 1),
    Sketcher.Constraint("Equal", 1, 2),
    Sketcher.Constraint("Equal", 2, 3),
    Sketcher.Constraint("Equal", 3, 4),
    Sketcher.Constraint("Equal", 4, 5),
    Sketcher.Constraint("Equal", 5, 6),
    Sketcher.Constraint("Equal", 6, 7),
    Sketcher.Constraint("Horizontal", 0, 3, 1, 3),
    Sketcher.Constraint("Horizontal", 1, 3, 2, 3),
    Sketcher.Constraint("Horizontal", 4, 3, 5, 3),
    Sketcher.Constraint("Horizontal", 5, 3, 6, 3),
    Sketcher.Constraint("Horizontal", 3, 3, 7, 3),
    Sketcher.Constraint("Vertical", 2, 3, 3, 3),
    Sketcher.Constraint("Vertical", 3, 3, 4, 3),
    Sketcher.Constraint("Vertical", 0, 3, 5, 3),
    Sketcher.Constraint("Vertical", 1, 3, 6, 3),
    Sketcher.Constraint("Vertical", 6, 3, 7, 3),
    Sketcher.Constraint("Diameter", 0, Q("0.25 in")),
    Sketcher.Constraint("DistanceY", -1, 1, 3, 3, Q("31 in")),
    Sketcher.Constraint("DistanceX", -1, 1, 0, 3, Q("30.5 in")),
    Sketcher.Constraint("DistanceY", -1, 1, 0, 3, Q("33.78 in")),
    Sketcher.Constraint("DistanceX", -1, 1, 1, 3, Q("33.64 in")),
    Sketcher.Constraint("DistanceX", -1, 1, 2, 3, Q("27.36 in")),
    Sketcher.Constraint("DistanceY", -1, 1, 4, 3, Q("28.22 in")),
])
pocket13 = doc.addObject("PartDesign::Pocket", "Pocket012")
body.addObject(pocket13)
pocket13.Profile = sketch14
pocket13.Type = "ThroughAll"
pocket13.Reversed = True

sketch15 = doc.addObject("Sketcher::SketchObject", "Sketch014")
body.addObject(sketch15)
sketch15.AttachmentSupport = (doc.XY_Plane, [""])
sketch15.MapMode = "FlatFace"
sketch15.addGeometry([
    Part.Circle(Vector(555.2, 1657.5, 0), Vector(0, 0, 1), 3.2),
    Part.Circle(Vector(453.6, 1657.5, 0), Vector(0, 0, 1), 3.2),
    Part.Circle(Vector(352, 1657.5, 0), Vector(0, 0, 1), 3.2),
    Part.Circle(Vector(250.4, 1657.5, 0), Vector(0, 0, 1), 3.2),
    Part.Circle(Vector(148.8, 1657.5, 0), Vector(0, 0, 1), 3.2),
], False)
sketch15.addConstraint([
    Sketcher.Constraint("Equal", 0, 1),
    Sketcher.Constraint("Equal", 1, 2),
    Sketcher.Constraint("Equal", 2, 3),
    Sketcher.Constraint("Equal", 3, 4),
    Sketcher.Constraint("Horizontal", 0, 3, 1, 3),
    Sketcher.Constraint("Horizontal", 1, 3, 2, 3),
    Sketcher.Constraint("Horizontal", 2, 3, 3, 3),
    Sketcher.Constraint("Horizontal", 3, 3, 4, 3),
    Sketcher.Constraint("Diameter", 0, Q("0.25 in")),
    Sketcher.Constraint("DistanceX", 1, 3, 0, 3, Q("4 in")),
    Sketcher.Constraint("DistanceX", 2, 3, 1, 3, Q("4 in")),
    Sketcher.Constraint("DistanceX", 3, 3, 2, 3, Q("4 in")),
    Sketcher.Constraint("DistanceX", 4, 3, 3, 3, Q("4 in")),
    Sketcher.Constraint("DistanceX", -1, 1, 0, 3, Q("21.86 in")),
    Sketcher.Constraint("DistanceY", -1, 1, 0, 3, Q("1657.48973 mm")),
])
pocket14 = doc.addObject("PartDesign::Pocket", "Pocket013")
body.addObject(pocket14)
pocket14.Profile = sketch15
pocket14.Type = "ThroughAll"
pocket14.Reversed = True

sketch16 = doc.addObject("Sketcher::SketchObject", "Sketch015")
body.addObject(sketch16)
sketch16.AttachmentSupport = (doc.XY_Plane, [""])
sketch16.MapMode = "FlatFace"
sketch16.addGeometry([
    Part.Circle(Vector(711.2, 1683.5, 0), Vector(0, 0, 1), 3.2),
    Part.Circle(Vector(711.2, 1618.5, 0), Vector(0, 0, 1), 3.2),
], False)
sketch16.addConstraint([
    Sketcher.Constraint("Equal", 0, 1),
    Sketcher.Constraint("Vertical", 0, 3, 1, 3),
    Sketcher.Constraint("Diameter", 0, Q("0.25 in")),
    Sketcher.Constraint("DistanceX", -1, 1, 0, 3, Q("28 in")),
    Sketcher.Constraint("DistanceY", 1, 3, 0, 3, Q("2.56 in")),
    Sketcher.Constraint("DistanceY", -1, 1, 0, 3, Q("1683.548964 mm")),
])
pocket15 = doc.addObject("PartDesign::Pocket", "Pocket014")
body.addObject(pocket15)
pocket15.Profile = sketch16
pocket15.Type = "ThroughAll"
pocket15.Reversed = True

doc.recompute()
